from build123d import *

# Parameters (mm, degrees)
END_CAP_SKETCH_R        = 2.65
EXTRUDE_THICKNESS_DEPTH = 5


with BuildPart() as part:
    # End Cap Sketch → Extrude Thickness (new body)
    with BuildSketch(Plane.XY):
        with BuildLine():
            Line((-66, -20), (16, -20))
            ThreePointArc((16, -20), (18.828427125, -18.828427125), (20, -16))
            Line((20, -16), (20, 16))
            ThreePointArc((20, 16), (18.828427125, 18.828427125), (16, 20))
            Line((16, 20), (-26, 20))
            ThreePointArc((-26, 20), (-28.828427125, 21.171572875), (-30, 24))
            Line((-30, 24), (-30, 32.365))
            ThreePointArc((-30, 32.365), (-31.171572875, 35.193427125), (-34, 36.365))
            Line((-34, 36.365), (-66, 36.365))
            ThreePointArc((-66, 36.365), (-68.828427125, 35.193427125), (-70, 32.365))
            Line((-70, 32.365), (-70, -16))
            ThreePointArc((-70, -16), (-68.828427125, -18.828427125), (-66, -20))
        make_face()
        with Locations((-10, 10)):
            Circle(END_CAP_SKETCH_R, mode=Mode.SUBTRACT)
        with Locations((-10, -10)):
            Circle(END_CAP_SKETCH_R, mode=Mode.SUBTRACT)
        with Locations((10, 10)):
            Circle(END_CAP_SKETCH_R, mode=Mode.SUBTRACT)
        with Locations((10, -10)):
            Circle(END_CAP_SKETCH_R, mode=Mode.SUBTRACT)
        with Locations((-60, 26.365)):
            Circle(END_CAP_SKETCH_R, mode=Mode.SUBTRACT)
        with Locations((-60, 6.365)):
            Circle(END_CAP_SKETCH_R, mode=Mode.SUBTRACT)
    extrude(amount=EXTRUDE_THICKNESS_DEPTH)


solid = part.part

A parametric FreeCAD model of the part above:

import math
import FreeCAD as App
import Part
import Sketcher
from FreeCAD import Vector

doc = App.newDocument("Part")
body = doc.addObject("PartDesign::Body", "Body")

sketch1 = body.newObject("Sketcher::SketchObject", "Sketch")
sketch1.AttachmentSupport = (doc.getObject("XY_Plane"), [""])
sketch1.MapMode = "FlatFace"
sketch1.addGeometry(Part.LineSegment(Vector(-66, -20, 0), Vector(16, -20, 0)), False)
sketch1.addGeometry(Part.ArcOfCircle(Part.Circle(Vector(16, -16, 0), Vector(0, 0, 1), 4), math.radians(-90), math.radians(0)), False)
sketch1.addGeometry(Part.LineSegment(Vector(20, -16, 0), Vector(20, 16, 0)), False)
sketch1.addGeometry(Part.ArcOfCircle(Part.Circle(Vector(16, 16, 0), Vector(0, 0, 1), 4), math.radians(0), math.radians(90)), False)
sketch1.addGeometry(Part.LineSegment(Vector(16, 20, 0), Vector(-26, 20, 0)), False)
sketch1.addGeometry(Part.ArcOfCircle(Part.Circle(Vector(-26, 24, 0), Vector(0, 0, 1), 4), math.radians(180), math.radians(270)), False)
sketch1.addGeometry(Part.LineSegment(Vector(-30, 24, 0), Vector(-30, 32.4, 0)), False)
sketch1.addGeometry(Part.ArcOfCircle(Part.Circle(Vector(-34, 32.4, 0), Vector(0, 0, 1), 4), math.radians(0), math.radians(90)), False)
sketch1.addGeometry(Part.LineSegment(Vector(-34, 36.4, 0), Vector(-66, 36.4, 0)), False)
sketch1.addGeometry(Part.ArcOfCircle(Part.Circle(Vector(-66, 32.4, 0), Vector(0, 0, 1), 4), math.radians(90), math.radians(180)), False)
sketch1.addGeometry(Part.LineSegment(Vector(-70, 32.4, 0), Vector(-70, -16, 0)), False)
sketch1.addGeometry(Part.ArcOfCircle(Part.Circle(Vector(-66, -16, 0), Vector(0, 0, 1), 4), math.radians(180), math.radians(270)), False)
sketch1.addGeometry(Part.Circle(Vector(-60, 6.4, 0), Vector(0, 0, 1), 2.6), False)
sketch1.addGeometry(Part.Circle(Vector(-10, -10, 0), Vector(0, 0, 1), 2.6), False)
sketch1.addGeometry(Part.Circle(Vector(10, -10, 0), Vector(0, 0, 1), 2.6), False)
sketch1.addGeometry(Part.Circle(Vector(-60, 26.4, 0), Vector(0, 0, 1), 2.6), False)
sketch1.addGeometry(Part.Circle(Vector(-10, 10, 0), Vector(0, 0, 1), 2.6), False)
sketch1.addGeometry(Part.Circle(Vector(10, 10, 0), Vector(0, 0, 1), 2.6), False)
sketch1.addConstraint(Sketcher.Constraint("Tangent", 0, 2, 1, 1))
sketch1.addConstraint(Sketcher.Constraint("Tangent", 1, 2, 2, 1))
sketch1.addConstraint(Sketcher.Constraint("Tangent", 2, 2, 3, 1))
sketch1.addConstraint(Sketcher.Constraint("Tangent", 3, 2, 4, 1))
sketch1.addConstraint(Sketcher.Constraint("Tangent", 4, 2, 5, 2))
sketch1.addConstraint(Sketcher.Constraint("Tangent", 5, 1, 6, 1))
sketch1.addConstraint(Sketcher.Constraint("Tangent", 6, 2, 7, 1))
sketch1.addConstraint(Sketcher.Constraint("Tangent", 7, 2, 8, 1))
sketch1.addConstraint(Sketcher.Constraint("Tangent", 8, 2, 9, 1))
sketch1.addConstraint(Sketcher.Constraint("Tangent", 9, 2, 10, 1))
sketch1.addConstraint(Sketcher.Constraint("Tangent", 10, 2, 11, 1))
sketch1.addConstraint(Sketcher.Constraint("Tangent", 11, 2, 0, 1))
sketch1.addConstraint(Sketcher.Constraint("Horizontal", 0))
sketch1.addConstraint(Sketcher.Constraint("Vertical", 2))
sketch1.addConstraint(Sketcher.Constraint("Horizontal", 4))
sketch1.addConstraint(Sketcher.Constraint("Vertical", 6))
sketch1.addConstraint(Sketcher.Constraint("Horizontal", 8))
sketch1.addConstraint(Sketcher.Constraint("Vertical", 10))
sketch1.addConstraint(Sketcher.Constraint("Equal", 1, 3))
sketch1.addConstraint(Sketcher.Constraint("Equal", 3, 5))
sketch1.addConstraint(Sketcher.Constraint("Equal", 5, 7))
sketch1.addConstraint(Sketcher.Constraint("Equal", 7, 9))
sketch1.addConstraint(Sketcher.Constraint("Equal", 9, 11))
sketch1.addConstraint(Sketcher.Constraint("Equal", 12, 13))
sketch1.addConstraint(Sketcher.Constraint("Equal", 13, 14))
sketch1.addConstraint(Sketcher.Constraint("Equal", 14, 15))
sketch1.addConstraint(Sketcher.Constraint("Equal", 15, 16))
sketch1.addConstraint(Sketcher.Constraint("Equal", 16, 17))
sketch1.addConstraint(Sketcher.Constraint("Symmetric", 14, 3, 16, 3, -1, 1))
sketch1.addConstraint(Sketcher.Constraint("Symmetric", 13, 3, 17, 3, -1, 1))
sketch1.addConstraint(Sketcher.Constraint("Symmetric", 13, 3, 14, 3, -2))
sketch1.addConstraint(Sketcher.Constraint("Vertical", 12, 3, 15, 3))
sketch1.addConstraint(Sketcher.Constraint("Equal", 8, 2))
sketch1.addConstraint(Sketcher.Constraint("Radius", 1, 4.0))
sketch1.addConstraint(Sketcher.Constraint("Diameter", 12, 5.3))
sketch1.addConstraint(Sketcher.Constraint("DistanceX", 0, 1, 0, 2, 82.0))
sketch1.addConstraint(Sketcher.Constraint("DistanceX", 4, 2, 4, 1, 42.0))
sketch1.addConstraint(Sketcher.Constraint("DistanceX", -1, 1, 1, 3, 16.0))
sketch1.addConstraint(Sketcher.Constraint("DistanceY", 1, 3, -1, 1, 16.0))
sketch1.addConstraint(Sketcher.Constraint("DistanceX", 12, 3, -1, 1, 60.0))
sketch1.addConstraint(Sketcher.Constraint("DistanceX", 13, 3, -1, 1, 10.0))
sketch1.addConstraint(Sketcher.Constraint("DistanceY", 13, 3, -1, 1, 10.0))
sketch1.addConstraint(Sketcher.Constraint("DistanceY", 12, 3, 9, 3, 26.0))
sketch1.addConstraint(Sketcher.Constraint("DistanceY", 15, 3, 9, 3, 6.0))
sketch1.addConstraint(Sketcher.Constraint("DistanceY", 6, 1, 6, 2, 8.365))
pad1 = body.newObject("PartDesign::Pad", "Pad")
pad1.Profile = sketch1
pad1.Length = 5

doc.recompute()
